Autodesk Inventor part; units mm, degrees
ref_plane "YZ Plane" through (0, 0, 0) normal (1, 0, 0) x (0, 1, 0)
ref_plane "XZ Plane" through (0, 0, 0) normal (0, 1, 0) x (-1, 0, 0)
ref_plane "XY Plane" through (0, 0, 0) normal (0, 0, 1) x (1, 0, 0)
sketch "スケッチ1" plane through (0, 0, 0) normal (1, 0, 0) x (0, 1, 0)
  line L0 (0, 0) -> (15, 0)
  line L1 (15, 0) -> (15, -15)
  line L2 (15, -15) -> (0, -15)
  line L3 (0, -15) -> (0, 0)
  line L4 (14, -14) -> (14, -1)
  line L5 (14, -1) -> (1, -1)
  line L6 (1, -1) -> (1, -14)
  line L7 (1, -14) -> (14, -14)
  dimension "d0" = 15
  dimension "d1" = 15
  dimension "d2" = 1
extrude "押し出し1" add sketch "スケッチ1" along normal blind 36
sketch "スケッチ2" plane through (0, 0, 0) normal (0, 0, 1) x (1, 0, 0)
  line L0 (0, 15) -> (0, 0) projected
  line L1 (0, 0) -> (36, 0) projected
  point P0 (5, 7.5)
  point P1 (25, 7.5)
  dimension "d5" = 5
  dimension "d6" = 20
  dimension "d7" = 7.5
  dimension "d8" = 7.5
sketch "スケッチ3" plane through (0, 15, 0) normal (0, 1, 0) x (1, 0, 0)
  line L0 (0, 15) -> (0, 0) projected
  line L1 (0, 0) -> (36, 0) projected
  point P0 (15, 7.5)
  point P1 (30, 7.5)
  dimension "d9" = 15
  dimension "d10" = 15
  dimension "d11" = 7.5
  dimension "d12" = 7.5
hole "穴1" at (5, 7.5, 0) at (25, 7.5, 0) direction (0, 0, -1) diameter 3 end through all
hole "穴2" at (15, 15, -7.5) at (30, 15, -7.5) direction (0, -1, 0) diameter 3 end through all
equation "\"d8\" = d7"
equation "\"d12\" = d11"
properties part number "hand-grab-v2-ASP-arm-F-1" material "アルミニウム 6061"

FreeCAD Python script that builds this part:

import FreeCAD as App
import Part
import Sketcher
from FreeCAD import Vector
Q = App.Units.Quantity


def add_polygon(sketch, points):
    """Adds a closed chain of lines whose ends are joined by coincident constraints."""
    first, n = sketch.GeometryCount, len(points)
    for a, b in zip(points, points[1:] + points[:1]):
        sketch.addGeometry(Part.LineSegment(App.Vector(*a, 0), App.Vector(*b, 0)), False)
    for i in range(n):
        sketch.addConstraint(Sketcher.Constraint("Coincident", first + i, 2, first + (i + 1) % n, 1))

doc = App.newDocument("Part")
body = doc.addObject("PartDesign::Body", "Body")

sketch1 = body.newObject("Sketcher::SketchObject", "Sketch")
sketch1.AttachmentSupport = (doc.getObject("YZ_Plane"), [""])
sketch1.MapMode = "FlatFace"
add_polygon(sketch1, [(15, 0), (0, 0), (0, -15), (15, -15)])
add_polygon(sketch1, [(14, -1), (14, -14), (1, -14), (1, -1)])
sketch1.addConstraint(Sketcher.Constraint("Horizontal", 0))
sketch1.addConstraint(Sketcher.Constraint("Vertical", 1))
sketch1.addConstraint(Sketcher.Constraint("Horizontal", 2))
sketch1.addConstraint(Sketcher.Constraint("Vertical", 3))
sketch1.addConstraint(Sketcher.Constraint("Vertical", 4))
sketch1.addConstraint(Sketcher.Constraint("Horizontal", 5))
sketch1.addConstraint(Sketcher.Constraint("Vertical", 6))
sketch1.addConstraint(Sketcher.Constraint("Horizontal", 7))
sketch1.addConstraint(Sketcher.Constraint("Coincident", 0, 2, -1, 1))
sketch1.addConstraint(Sketcher.Constraint("Equal", 2, 1))
sketch1.addConstraint(Sketcher.Constraint("Equal", 7, 4))
sketch1.addConstraint(Sketcher.Constraint("DistanceX", 0, 2, 0, 1, Q("15 mm")))
sketch1.addConstraint(Sketcher.Constraint("DistanceX", -1, 1, 5, 2, Q("1 mm")))
sketch1.addConstraint(Sketcher.Constraint("DistanceY", 6, 2, -1, 1, Q("1 mm")))
sketch1.addConstraint(Sketcher.Constraint("DistanceX", 4, 2, 2, 2, Q("1 mm")))
pad1 = body.newObject("PartDesign::Pad", "Pad")
pad1.Profile = sketch1
pad1.Length = 36

sketch2 = body.newObject("Sketcher::SketchObject", "Sketch001")
sketch2.AttachmentSupport = (doc.getObject("XY_Plane"), [""])
sketch2.MapMode = "FlatFace"
sketch2.addGeometry(Part.Circle(Vector(5, 7.5, 0), Vector(0, 0, 1), 1.5), False)
sketch2.addGeometry(Part.Circle(Vector(25, 7.5, 0), Vector(0, 0, 1), 1.5), False)
sketch2.addConstraint(Sketcher.Constraint("Equal", 0, 1))
sketch2.addConstraint(Sketcher.Constraint("Horizontal", 0, 3, 1, 3))
sketch2.addConstraint(Sketcher.Constraint("Diameter", 0, Q("3 mm")))
sketch2.addConstraint(Sketcher.Constraint("DistanceX", -1, 1, 0, 3, Q("5 mm")))
sketch2.addConstraint(Sketcher.Constraint("DistanceX", -1, 1, 1, 3, Q("25 mm")))
sketch2.addConstraint(Sketcher.Constraint("DistanceY", -1, 1, 0, 3, Q("7.5 mm")))
doc.recompute()
hole = body.newObject("PartDesign::Hole", "Hole")
hole.Profile = sketch2
hole.ThreadType = "None"
hole.Diameter = 3
hole.DepthType = "ThroughAll"

sketch3 = body.newObject("Sketcher::SketchObject", "Sketch002")
sketch3.AttachmentSupport = (doc.getObject("XZ_Plane"), [""])
sketch3.MapMode = "FlatFace"
sketch3.AttachmentOffset = App.Placement(Vector(0, 0, -15), App.Rotation())
sketch3.addGeometry(Part.Circle(Vector(15, -7.5, 0), Vector(0, 0, 1), 1.5), False)
sketch3.addGeometry(Part.Circle(Vector(30, -7.5, 0), Vector(0, 0, 1), 1.5), False)
sketch3.addConstraint(Sketcher.Constraint("Equal", 0, 1))
sketch3.addConstraint(Sketcher.Constraint("Horizontal", 0, 3, 1, 3))
sketch3.addConstraint(Sketcher.Constraint("Diameter", 0, Q("3 mm")))
sketch3.addConstraint(Sketcher.Constraint("DistanceX", -1, 1, 0, 3, Q("15 mm")))
sketch3.addConstraint(Sketcher.Constraint("DistanceX", -1, 1, 1, 3, Q("30 mm")))
sketch3.addConstraint(Sketcher.Constraint("DistanceY", 0, 3, -1, 1, Q("7.5 mm")))
doc.recompute()
hole2 = body.newObject("PartDesign::Hole", "Hole001")
hole2.Profile = sketch3
hole2.ThreadType = "None"
hole2.Diameter = 3
hole2.DepthType = "ThroughAll"
hole2.Reversed = True

doc.recompute()
